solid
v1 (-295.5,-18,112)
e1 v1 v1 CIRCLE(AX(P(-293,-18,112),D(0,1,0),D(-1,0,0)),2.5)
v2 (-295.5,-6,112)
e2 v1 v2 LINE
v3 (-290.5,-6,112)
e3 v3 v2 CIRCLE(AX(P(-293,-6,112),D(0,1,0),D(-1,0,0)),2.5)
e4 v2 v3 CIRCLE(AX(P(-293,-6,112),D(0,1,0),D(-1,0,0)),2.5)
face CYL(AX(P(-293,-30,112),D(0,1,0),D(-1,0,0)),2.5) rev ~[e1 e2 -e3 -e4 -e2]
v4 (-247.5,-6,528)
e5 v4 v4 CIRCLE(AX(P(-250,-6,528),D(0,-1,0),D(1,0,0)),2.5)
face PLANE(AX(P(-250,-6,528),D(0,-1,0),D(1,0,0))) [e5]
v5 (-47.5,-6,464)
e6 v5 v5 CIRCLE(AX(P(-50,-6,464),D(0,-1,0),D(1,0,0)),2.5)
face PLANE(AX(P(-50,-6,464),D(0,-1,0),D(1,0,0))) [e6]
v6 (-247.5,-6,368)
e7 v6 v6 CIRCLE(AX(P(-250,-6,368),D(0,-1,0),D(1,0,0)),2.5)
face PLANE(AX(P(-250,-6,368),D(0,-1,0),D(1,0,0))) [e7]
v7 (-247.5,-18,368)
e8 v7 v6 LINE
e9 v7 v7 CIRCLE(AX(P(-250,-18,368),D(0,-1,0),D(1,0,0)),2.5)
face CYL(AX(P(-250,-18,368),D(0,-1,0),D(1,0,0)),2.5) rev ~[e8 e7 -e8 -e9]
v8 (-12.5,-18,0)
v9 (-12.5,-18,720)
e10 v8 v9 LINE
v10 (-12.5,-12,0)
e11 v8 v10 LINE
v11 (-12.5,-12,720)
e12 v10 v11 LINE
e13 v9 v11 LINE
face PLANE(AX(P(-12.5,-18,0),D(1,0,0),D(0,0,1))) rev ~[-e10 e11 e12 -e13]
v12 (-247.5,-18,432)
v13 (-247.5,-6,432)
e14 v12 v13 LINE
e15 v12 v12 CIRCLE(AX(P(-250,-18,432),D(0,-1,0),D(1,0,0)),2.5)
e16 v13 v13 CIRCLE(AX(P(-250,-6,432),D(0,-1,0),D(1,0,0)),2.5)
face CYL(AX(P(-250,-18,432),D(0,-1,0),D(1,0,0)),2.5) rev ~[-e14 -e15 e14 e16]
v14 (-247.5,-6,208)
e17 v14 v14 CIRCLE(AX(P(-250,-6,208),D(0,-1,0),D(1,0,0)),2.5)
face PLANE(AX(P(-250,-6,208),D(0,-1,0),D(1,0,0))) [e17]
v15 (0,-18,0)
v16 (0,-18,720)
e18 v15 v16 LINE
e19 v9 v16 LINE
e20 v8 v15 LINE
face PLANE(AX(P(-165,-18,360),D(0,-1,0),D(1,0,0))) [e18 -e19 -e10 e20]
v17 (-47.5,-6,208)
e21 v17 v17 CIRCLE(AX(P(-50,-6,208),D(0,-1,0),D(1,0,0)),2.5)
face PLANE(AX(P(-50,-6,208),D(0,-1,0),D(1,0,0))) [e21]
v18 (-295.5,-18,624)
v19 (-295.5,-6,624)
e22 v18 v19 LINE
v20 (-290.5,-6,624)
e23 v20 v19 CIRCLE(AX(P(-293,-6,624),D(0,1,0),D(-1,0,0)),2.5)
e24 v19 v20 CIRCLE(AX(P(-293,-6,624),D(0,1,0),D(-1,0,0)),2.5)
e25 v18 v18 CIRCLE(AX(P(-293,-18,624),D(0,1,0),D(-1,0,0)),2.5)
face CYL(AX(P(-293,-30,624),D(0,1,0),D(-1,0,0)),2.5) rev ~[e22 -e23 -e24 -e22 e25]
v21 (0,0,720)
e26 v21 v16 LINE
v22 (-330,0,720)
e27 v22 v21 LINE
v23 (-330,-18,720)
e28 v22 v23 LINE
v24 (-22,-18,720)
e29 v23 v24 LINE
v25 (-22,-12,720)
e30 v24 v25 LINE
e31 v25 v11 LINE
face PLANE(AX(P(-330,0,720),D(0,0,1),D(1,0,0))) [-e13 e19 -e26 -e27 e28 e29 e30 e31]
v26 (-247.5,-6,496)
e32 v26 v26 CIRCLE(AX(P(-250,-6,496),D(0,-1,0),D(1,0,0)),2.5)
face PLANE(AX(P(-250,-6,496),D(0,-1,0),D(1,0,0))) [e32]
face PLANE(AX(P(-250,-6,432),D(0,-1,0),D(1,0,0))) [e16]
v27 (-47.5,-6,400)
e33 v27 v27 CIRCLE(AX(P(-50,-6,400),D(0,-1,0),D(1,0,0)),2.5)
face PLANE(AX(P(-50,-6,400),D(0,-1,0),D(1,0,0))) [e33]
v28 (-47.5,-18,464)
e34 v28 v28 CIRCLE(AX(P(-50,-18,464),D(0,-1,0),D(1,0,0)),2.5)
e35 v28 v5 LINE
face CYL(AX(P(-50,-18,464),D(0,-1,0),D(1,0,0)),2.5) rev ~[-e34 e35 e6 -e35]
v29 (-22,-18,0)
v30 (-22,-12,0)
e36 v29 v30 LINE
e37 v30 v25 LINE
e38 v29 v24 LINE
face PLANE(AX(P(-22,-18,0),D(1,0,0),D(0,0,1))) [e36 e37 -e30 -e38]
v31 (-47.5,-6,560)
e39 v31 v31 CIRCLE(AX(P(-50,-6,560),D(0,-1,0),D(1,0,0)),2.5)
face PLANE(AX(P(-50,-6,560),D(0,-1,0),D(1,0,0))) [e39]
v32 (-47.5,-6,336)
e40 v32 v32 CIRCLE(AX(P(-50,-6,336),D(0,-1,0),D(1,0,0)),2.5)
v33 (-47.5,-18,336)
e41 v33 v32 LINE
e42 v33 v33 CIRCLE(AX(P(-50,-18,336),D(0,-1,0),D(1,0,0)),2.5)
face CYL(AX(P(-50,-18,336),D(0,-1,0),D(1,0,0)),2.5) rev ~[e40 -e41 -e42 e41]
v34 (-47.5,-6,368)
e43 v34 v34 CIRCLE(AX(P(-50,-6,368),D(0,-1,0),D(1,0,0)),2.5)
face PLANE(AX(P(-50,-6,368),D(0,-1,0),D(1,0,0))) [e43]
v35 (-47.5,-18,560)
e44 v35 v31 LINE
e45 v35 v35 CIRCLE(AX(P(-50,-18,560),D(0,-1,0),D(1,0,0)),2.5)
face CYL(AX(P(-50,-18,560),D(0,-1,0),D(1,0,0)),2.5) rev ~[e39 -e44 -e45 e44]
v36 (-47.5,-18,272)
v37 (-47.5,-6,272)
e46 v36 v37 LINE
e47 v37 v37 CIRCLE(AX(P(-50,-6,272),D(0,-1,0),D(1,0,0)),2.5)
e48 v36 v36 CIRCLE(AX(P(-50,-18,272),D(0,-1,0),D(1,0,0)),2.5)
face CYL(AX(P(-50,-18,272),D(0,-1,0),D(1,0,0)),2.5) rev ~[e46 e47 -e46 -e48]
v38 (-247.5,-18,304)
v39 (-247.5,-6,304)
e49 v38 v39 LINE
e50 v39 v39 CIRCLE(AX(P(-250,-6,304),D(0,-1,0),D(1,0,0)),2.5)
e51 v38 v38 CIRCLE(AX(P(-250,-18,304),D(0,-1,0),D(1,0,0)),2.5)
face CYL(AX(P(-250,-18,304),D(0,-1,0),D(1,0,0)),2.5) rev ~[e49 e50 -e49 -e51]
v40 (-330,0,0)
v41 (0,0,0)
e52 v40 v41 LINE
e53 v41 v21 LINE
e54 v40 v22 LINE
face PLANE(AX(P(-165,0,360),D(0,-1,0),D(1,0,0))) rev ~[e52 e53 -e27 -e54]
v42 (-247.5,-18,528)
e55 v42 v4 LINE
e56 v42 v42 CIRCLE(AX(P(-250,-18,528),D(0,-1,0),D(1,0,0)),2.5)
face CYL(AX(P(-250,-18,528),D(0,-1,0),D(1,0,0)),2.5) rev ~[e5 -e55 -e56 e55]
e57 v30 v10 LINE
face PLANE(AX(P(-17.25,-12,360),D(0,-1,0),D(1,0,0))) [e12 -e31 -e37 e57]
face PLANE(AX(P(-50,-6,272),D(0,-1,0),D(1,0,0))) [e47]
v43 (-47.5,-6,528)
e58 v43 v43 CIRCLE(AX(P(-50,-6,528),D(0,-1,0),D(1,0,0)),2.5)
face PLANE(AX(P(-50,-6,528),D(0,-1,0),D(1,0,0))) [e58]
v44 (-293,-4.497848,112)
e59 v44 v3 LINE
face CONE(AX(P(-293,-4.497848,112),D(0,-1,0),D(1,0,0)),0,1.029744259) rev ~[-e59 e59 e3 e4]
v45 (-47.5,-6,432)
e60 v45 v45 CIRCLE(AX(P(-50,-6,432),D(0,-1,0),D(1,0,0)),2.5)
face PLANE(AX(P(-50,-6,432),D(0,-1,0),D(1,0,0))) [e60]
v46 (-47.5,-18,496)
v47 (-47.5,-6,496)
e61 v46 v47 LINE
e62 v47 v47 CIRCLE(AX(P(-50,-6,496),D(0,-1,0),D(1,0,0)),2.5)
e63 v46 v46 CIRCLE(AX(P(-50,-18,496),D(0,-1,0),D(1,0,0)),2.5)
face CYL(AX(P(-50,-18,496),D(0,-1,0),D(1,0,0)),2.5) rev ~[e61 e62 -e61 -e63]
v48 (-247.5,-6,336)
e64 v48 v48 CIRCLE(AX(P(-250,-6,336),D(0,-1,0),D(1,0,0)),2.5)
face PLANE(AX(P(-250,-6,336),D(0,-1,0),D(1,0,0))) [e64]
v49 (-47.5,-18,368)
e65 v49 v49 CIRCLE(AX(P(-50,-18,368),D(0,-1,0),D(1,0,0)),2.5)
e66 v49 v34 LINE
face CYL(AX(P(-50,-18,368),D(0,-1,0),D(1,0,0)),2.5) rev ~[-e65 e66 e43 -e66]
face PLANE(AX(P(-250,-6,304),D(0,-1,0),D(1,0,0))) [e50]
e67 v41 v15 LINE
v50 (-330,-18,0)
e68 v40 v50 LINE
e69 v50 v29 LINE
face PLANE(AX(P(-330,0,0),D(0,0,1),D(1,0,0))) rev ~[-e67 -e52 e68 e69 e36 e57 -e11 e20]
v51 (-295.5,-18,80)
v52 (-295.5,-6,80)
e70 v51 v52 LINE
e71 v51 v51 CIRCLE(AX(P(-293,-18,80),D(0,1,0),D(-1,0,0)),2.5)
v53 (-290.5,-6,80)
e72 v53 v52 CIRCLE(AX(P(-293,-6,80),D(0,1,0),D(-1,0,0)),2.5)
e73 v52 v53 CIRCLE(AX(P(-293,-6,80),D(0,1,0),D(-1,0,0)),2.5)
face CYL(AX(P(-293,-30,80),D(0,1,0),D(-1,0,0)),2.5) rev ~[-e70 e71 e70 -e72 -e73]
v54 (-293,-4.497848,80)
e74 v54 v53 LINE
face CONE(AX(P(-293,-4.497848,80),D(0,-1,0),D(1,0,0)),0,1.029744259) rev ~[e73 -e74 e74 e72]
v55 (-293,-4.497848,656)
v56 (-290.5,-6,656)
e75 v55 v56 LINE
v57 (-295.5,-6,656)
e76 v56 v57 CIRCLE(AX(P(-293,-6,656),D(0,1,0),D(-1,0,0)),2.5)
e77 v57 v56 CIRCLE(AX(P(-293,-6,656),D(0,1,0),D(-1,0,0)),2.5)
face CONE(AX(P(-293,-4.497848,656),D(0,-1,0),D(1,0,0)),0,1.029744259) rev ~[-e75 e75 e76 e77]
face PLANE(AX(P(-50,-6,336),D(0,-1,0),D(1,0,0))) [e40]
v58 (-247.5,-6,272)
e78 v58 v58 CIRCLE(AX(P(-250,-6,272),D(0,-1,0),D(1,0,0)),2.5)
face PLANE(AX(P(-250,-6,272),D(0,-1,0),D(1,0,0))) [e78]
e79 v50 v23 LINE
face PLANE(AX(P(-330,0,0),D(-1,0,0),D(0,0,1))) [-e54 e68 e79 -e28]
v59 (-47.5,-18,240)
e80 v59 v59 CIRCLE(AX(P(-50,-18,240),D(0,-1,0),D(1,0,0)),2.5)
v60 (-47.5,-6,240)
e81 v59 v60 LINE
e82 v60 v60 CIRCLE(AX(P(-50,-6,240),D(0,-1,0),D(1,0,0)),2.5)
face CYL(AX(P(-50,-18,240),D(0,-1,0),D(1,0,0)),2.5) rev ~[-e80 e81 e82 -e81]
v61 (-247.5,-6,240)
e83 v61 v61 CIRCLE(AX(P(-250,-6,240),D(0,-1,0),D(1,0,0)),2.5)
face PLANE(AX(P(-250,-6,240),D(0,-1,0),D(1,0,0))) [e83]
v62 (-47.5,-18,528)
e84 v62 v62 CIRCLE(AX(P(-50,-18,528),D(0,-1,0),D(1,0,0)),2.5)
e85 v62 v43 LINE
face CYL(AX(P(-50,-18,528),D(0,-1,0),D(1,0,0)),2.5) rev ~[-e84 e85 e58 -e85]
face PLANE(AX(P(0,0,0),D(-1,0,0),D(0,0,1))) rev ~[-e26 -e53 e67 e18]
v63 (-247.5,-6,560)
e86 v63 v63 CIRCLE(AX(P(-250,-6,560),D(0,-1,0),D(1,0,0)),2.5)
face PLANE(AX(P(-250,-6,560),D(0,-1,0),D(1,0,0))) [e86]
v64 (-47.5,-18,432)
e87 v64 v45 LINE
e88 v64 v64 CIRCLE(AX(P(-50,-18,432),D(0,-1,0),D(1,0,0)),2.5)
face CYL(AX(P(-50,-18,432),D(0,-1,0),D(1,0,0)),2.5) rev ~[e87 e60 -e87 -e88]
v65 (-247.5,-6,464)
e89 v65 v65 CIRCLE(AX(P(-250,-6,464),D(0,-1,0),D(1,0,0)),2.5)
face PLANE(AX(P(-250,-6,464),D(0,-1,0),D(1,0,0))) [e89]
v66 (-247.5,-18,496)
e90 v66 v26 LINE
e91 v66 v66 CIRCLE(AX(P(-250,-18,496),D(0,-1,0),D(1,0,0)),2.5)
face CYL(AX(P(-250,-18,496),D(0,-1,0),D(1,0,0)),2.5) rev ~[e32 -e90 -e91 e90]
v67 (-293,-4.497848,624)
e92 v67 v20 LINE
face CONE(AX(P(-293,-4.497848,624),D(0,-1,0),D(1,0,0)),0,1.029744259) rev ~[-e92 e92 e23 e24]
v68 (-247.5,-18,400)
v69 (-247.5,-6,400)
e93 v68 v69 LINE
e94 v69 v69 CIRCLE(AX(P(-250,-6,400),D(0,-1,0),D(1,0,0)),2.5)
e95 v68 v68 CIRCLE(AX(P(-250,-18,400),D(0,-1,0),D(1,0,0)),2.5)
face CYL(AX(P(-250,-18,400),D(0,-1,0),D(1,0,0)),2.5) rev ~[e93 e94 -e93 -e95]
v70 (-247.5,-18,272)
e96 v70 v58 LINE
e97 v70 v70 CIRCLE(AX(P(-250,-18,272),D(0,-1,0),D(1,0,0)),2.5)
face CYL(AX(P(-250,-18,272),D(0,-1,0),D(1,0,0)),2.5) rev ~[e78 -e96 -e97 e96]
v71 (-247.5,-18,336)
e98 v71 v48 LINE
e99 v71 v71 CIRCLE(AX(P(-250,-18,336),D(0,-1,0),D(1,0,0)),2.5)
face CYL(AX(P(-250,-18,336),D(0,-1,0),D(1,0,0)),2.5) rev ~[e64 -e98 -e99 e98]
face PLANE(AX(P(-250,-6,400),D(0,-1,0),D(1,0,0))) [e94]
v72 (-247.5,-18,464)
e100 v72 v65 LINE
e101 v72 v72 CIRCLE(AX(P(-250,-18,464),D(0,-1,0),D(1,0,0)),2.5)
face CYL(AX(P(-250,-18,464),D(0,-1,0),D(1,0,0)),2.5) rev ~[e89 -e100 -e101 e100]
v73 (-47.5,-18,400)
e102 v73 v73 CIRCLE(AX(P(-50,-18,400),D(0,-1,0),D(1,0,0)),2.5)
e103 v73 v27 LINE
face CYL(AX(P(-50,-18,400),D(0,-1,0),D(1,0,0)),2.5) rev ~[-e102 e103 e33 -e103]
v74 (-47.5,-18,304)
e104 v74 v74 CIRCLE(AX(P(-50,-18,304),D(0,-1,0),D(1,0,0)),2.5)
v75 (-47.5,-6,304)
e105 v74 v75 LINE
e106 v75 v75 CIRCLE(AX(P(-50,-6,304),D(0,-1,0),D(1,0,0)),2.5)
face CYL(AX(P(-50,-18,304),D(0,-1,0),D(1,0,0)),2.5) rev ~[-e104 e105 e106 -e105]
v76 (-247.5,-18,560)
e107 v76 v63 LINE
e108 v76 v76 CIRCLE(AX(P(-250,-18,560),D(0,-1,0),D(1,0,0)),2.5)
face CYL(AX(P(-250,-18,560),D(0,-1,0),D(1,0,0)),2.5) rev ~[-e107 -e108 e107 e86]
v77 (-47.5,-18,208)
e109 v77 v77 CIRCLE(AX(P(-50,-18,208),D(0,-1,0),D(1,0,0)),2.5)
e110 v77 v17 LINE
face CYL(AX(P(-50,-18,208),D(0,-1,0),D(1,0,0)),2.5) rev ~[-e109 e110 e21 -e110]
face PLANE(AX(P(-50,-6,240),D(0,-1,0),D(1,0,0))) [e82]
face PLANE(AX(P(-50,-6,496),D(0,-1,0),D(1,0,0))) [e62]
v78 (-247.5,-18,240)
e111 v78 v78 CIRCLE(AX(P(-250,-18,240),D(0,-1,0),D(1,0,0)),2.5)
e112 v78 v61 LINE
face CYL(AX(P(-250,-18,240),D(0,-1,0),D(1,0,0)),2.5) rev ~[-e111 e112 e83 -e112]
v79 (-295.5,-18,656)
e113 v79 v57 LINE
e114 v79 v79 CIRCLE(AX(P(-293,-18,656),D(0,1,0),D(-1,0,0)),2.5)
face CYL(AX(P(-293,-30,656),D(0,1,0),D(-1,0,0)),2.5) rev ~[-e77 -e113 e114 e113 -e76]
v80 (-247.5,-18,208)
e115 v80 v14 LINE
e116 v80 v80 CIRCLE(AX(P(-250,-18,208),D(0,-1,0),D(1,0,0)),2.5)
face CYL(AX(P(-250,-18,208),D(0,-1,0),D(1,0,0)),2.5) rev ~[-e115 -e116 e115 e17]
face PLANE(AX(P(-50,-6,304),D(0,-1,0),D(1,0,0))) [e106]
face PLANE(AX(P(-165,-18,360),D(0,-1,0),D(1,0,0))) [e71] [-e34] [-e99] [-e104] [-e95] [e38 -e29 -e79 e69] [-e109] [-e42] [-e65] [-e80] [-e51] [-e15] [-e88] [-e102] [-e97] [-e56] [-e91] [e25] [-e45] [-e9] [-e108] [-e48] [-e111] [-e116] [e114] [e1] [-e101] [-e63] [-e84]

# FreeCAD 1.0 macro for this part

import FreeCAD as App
import Part
import Sketcher
from FreeCAD import Vector
Q = App.Units.Quantity


def add_polygon(sketch, points):
    """Adds a closed chain of lines whose ends are joined by coincident constraints."""
    first, n = sketch.GeometryCount, len(points)
    for a, b in zip(points, points[1:] + points[:1]):
        sketch.addGeometry(Part.LineSegment(App.Vector(*a, 0), App.Vector(*b, 0)), False)
    for i in range(n):
        sketch.addConstraint(Sketcher.Constraint("Coincident", first + i, 2, first + (i + 1) % n, 1))

doc = App.newDocument("Part")
body = doc.addObject("PartDesign::Body", "Body")

sketch1 = body.newObject("Sketcher::SketchObject", "Sketch")
sketch1.AttachmentSupport = (doc.getObject("XZ_Plane"), [""])
sketch1.MapMode = "FlatFace"
add_polygon(sketch1, [(-330, 720), (-330, 0), (0, 0), (0, 720)])
sketch1.addConstraint([
    Sketcher.Constraint("Vertical", 0),
    Sketcher.Constraint("Horizontal", 1),
    Sketcher.Constraint("Vertical", 2),
    Sketcher.Constraint("Horizontal", 3),
    Sketcher.Constraint("Coincident", 1, 2, -1, 1),
    Sketcher.Constraint("DistanceX", 1, 1, 1, 2, Q("330 mm")),
    Sketcher.Constraint("DistanceY", 0, 2, 0, 1, Q("720 mm")),
])
pad1 = body.newObject("PartDesign::Pad", "Pad")
pad1.Profile = sketch1
pad1.Length = 18

sketch2 = body.newObject("Sketcher::SketchObject", "Sketch001")
sketch2.AttachmentSupport = (doc.getObject("XZ_Plane"), [""])
sketch2.MapMode = "FlatFace"
sketch2.AttachmentOffset = App.Placement(Vector(0, 0, 18), App.Rotation())
sketch2.addGeometry([
    Part.Circle(Vector(-293, 656, 0), Vector(0, 0, 1), 2.5),
    Part.Circle(Vector(-293, 624, 0), Vector(0, 0, 1), 2.5),
    Part.Circle(Vector(-293, 112, 0), Vector(0, 0, 1), 2.5),
    Part.Circle(Vector(-293, 80, 0), Vector(0, 0, 1), 2.5),
], False)
sketch2.addConstraint([
    Sketcher.Constraint("Equal", 0, 1),
    Sketcher.Constraint("Equal", 1, 2),
    Sketcher.Constraint("Equal", 2, 3),
    Sketcher.Constraint("Vertical", 0, 3, 1, 3),
    Sketcher.Constraint("Vertical", 1, 3, 2, 3),
    Sketcher.Constraint("Vertical", 2, 3, 3, 3),
    Sketcher.Constraint("Diameter", 0, Q("5 mm")),
    Sketcher.Constraint("DistanceX", 0, 3, -1, 1, Q("293 mm")),
    Sketcher.Constraint("DistanceY", -1, 1, 0, 3, Q("656 mm")),
    Sketcher.Constraint("DistanceY", -1, 1, 1, 3, Q("624 mm")),
    Sketcher.Constraint("DistanceY", -1, 1, 2, 3, Q("112 mm")),
    Sketcher.Constraint("DistanceY", -1, 1, 3, 3, Q("80 mm")),
])
doc.recompute()
hole = body.newObject("PartDesign::Hole", "Hole")
hole.Profile = sketch2
hole.ThreadType = "None"
hole.Diameter = 5
hole.DepthType = "Dimension"
hole.Depth = 12
hole.DrillPoint = "Angled"
hole.DrillPointAngle = 118

sketch3 = body.newObject("Sketcher::SketchObject", "Sketch002")
sketch3.AttachmentSupport = (doc.getObject("XZ_Plane"), [""])
sketch3.MapMode = "FlatFace"
sketch3.AttachmentOffset = App.Placement(Vector(0, 0, 18), App.Rotation())
add_polygon(sketch3, [(-22, 720), (-22, 0), (-12, 0), (-12, 720)])
sketch3.addConstraint([
    Sketcher.Constraint("Vertical", 0),
    Sketcher.Constraint("Horizontal", 1),
    Sketcher.Constraint("Vertical", 2),
    Sketcher.Constraint("Horizontal", 3),
    Sketcher.Constraint("PointOnObject", 0, 2, -1),
    Sketcher.Constraint("DistanceY", 0, 2, 0, 1, Q("720 mm")),
    Sketcher.Constraint("DistanceX", 1, 1, 1, 2, Q("9.5 mm")),
    Sketcher.Constraint("DistanceX", 0, 2, -1, 1, Q("22 mm")),
])
pocket1 = body.newObject("PartDesign::Pocket", "Pocket")
pocket1.Profile = sketch3
pocket1.Length = 6

sketch4 = body.newObject("Sketcher::SketchObject", "Sketch003")
sketch4.AttachmentSupport = (doc.getObject("XZ_Plane"), [""])
sketch4.MapMode = "FlatFace"
sketch4.AttachmentOffset = App.Placement(Vector(0, 0, 18), App.Rotation())
sketch4.addGeometry([
    Part.Circle(Vector(-250, 208, 0), Vector(0, 0, 1), 2.5),
    Part.Circle(Vector(-250, 240, 0), Vector(0, 0, 1), 2.5),
    Part.Circle(Vector(-250, 272, 0), Vector(0, 0, 1), 2.5),
    Part.Circle(Vector(-250, 304, 0), Vector(0, 0, 1), 2.5),
    Part.Circle(Vector(-250, 336, 0), Vector(0, 0, 1), 2.5),
    Part.Circle(Vector(-250, 368, 0), Vector(0, 0, 1), 2.5),
    Part.Circle(Vector(-250, 400, 0), Vector(0, 0, 1), 2.5),
    Part.Circle(Vector(-250, 432, 0), Vector(0, 0, 1), 2.5),
    Part.Circle(Vector(-250, 464, 0), Vector(0, 0, 1), 2.5),
    Part.Circle(Vector(-250, 496, 0), Vector(0, 0, 1), 2.5),
    Part.Circle(Vector(-250, 528, 0), Vector(0, 0, 1), 2.5),
    Part.Circle(Vector(-250, 560, 0), Vector(0, 0, 1), 2.5),
    Part.Circle(Vector(-50, 208, 0), Vector(0, 0, 1), 2.5),
    Part.Circle(Vector(-50, 240, 0), Vector(0, 0, 1), 2.5),
    Part.Circle(Vector(-50, 272, 0), Vector(0, 0, 1), 2.5),
    Part.Circle(Vector(-50, 304, 0), Vector(0, 0, 1), 2.5),
    Part.Circle(Vector(-50, 336, 0), Vector(0, 0, 1), 2.5),
    Part.Circle(Vector(-50, 368, 0), Vector(0, 0, 1), 2.5),
    Part.Circle(Vector(-50, 400, 0), Vector(0, 0, 1), 2.5),
    Part.Circle(Vector(-50, 432, 0), Vector(0, 0, 1), 2.5),
    Part.Circle(Vector(-50, 464, 0), Vector(0, 0, 1), 2.5),
    Part.Circle(Vector(-50, 496, 0), Vector(0, 0, 1), 2.5),
    Part.Circle(Vector(-50, 528, 0), Vector(0, 0, 1), 2.5),
    Part.Circle(Vector(-50, 560, 0), Vector(0, 0, 1), 2.5),
], False)
sketch4.addConstraint([
    Sketcher.Constraint("Equal", 0, 1),
    Sketcher.Constraint("Equal", 1, 2),
    Sketcher.Constraint("Equal", 2, 3),
    Sketcher.Constraint("Equal", 3, 4),
    Sketcher.Constraint("Equal", 4, 5),
    Sketcher.Constraint("Equal", 5, 6),
    Sketcher.Constraint("Equal", 6, 7),
    Sketcher.Constraint("Equal", 7, 8),
    Sketcher.Constraint("Equal", 8, 9),
    Sketcher.Constraint("Equal", 9, 10),
    Sketcher.Constraint("Equal", 10, 11),
    Sketcher.Constraint("Equal", 11, 12),
    Sketcher.Constraint("Equal", 12, 13),
    Sketcher.Constraint("Equal", 13, 14),
    Sketcher.Constraint("Equal", 14, 15),
    Sketcher.Constraint("Equal", 15, 16),
    Sketcher.Constraint("Equal", 16, 17),
    Sketcher.Constraint("Equal", 17, 18),
    Sketcher.Constraint("Equal", 18, 19),
    Sketcher.Constraint("Equal", 19, 20),
    Sketcher.Constraint("Equal", 20, 21),
    Sketcher.Constraint("Equal", 21, 22),
    Sketcher.Constraint("Equal", 22, 23),
    Sketcher.Constraint("Horizontal", 0, 3, 12, 3),
    Sketcher.Constraint("Horizontal", 1, 3, 13, 3),
    Sketcher.Constraint("Horizontal", 2, 3, 14, 3),
    Sketcher.Constraint("Horizontal", 3, 3, 15, 3),
    Sketcher.Constraint("Horizontal", 4, 3, 16, 3),
    Sketcher.Constraint("Horizontal", 5, 3, 17, 3),
    Sketcher.Constraint("Horizontal", 6, 3, 18, 3),
    Sketcher.Constraint("Horizontal", 7, 3, 19, 3),
    Sketcher.Constraint("Horizontal", 8, 3, 20, 3),
    Sketcher.Constraint("Horizontal", 9, 3, 21, 3),
    Sketcher.Constraint("Horizontal", 10, 3, 22, 3),
    Sketcher.Constraint("Horizontal", 11, 3, 23, 3),
    Sketcher.Constraint("Vertical", 0, 3, 1, 3),
    Sketcher.Constraint("Vertical", 1, 3, 2, 3),
    Sketcher.Constraint("Vertical", 2, 3, 3, 3),
    Sketcher.Constraint("Vertical", 3, 3, 4, 3),
    Sketcher.Constraint("Vertical", 4, 3, 5, 3),
    Sketcher.Constraint("Vertical", 5, 3, 6, 3),
    Sketcher.Constraint("Vertical", 6, 3, 7, 3),
    Sketcher.Constraint("Vertical", 7, 3, 8, 3),
    Sketcher.Constraint("Vertical", 8, 3, 9, 3),
    Sketcher.Constraint("Vertical", 9, 3, 10, 3),
    Sketcher.Constraint("Vertical", 10, 3, 11, 3),
    Sketcher.Constraint("Vertical", 12, 3, 13, 3),
    Sketcher.Constraint("Vertical", 13, 3, 14, 3),
    Sketcher.Constraint("Vertical", 14, 3, 15, 3),
    Sketcher.Constraint("Vertical", 15, 3, 16, 3),
    Sketcher.Constraint("Vertical", 16, 3, 17, 3),
    Sketcher.Constraint("Vertical", 17, 3, 18, 3),
    Sketcher.Constraint("Vertical", 18, 3, 19, 3),
    Sketcher.Constraint("Vertical", 19, 3, 20, 3),
    Sketcher.Constraint("Vertical", 20, 3, 21, 3),
    Sketcher.Constraint("Vertical", 21, 3, 22, 3),
    Sketcher.Constraint("Vertical", 22, 3, 23, 3),
    Sketcher.Constraint("Diameter", 0, Q("5 mm")),
    Sketcher.Constraint("DistanceX", 0, 3, -1, 1, Q("250 mm")),
    Sketcher.Constraint("DistanceY", -1, 1, 0, 3, Q("208 mm")),
    Sketcher.Constraint("DistanceY", -1, 1, 1, 3, Q("240 mm")),
    Sketcher.Constraint("DistanceY", -1, 1, 2, 3, Q("272 mm")),
    Sketcher.Constraint("DistanceY", -1, 1, 3, 3, Q("304 mm")),
    Sketcher.Constraint("DistanceY", -1, 1, 4, 3, Q("336 mm")),
    Sketcher.Constraint("DistanceY", -1, 1, 5, 3, Q("368 mm")),
    Sketcher.Constraint("DistanceY", -1, 1, 6, 3, Q("400 mm")),
    Sketcher.Constraint("DistanceY", -1, 1, 7, 3, Q("432 mm")),
    Sketcher.Constraint("DistanceY", -1, 1, 8, 3, Q("464 mm")),
    Sketcher.Constraint("DistanceY", -1, 1, 9, 3, Q("496 mm")),
    Sketcher.Constraint("DistanceY", -1, 1, 10, 3, Q("528 mm")),
    Sketcher.Constraint("DistanceY", -1, 1, 11, 3, Q("560 mm")),
    Sketcher.Constraint("DistanceX", 12, 3, -1, 1, Q("50 mm")),
])
pocket2 = body.newObject("PartDesign::Pocket", "Pocket001")
pocket2.Profile = sketch4
pocket2.Length = 12

doc.recompute()
